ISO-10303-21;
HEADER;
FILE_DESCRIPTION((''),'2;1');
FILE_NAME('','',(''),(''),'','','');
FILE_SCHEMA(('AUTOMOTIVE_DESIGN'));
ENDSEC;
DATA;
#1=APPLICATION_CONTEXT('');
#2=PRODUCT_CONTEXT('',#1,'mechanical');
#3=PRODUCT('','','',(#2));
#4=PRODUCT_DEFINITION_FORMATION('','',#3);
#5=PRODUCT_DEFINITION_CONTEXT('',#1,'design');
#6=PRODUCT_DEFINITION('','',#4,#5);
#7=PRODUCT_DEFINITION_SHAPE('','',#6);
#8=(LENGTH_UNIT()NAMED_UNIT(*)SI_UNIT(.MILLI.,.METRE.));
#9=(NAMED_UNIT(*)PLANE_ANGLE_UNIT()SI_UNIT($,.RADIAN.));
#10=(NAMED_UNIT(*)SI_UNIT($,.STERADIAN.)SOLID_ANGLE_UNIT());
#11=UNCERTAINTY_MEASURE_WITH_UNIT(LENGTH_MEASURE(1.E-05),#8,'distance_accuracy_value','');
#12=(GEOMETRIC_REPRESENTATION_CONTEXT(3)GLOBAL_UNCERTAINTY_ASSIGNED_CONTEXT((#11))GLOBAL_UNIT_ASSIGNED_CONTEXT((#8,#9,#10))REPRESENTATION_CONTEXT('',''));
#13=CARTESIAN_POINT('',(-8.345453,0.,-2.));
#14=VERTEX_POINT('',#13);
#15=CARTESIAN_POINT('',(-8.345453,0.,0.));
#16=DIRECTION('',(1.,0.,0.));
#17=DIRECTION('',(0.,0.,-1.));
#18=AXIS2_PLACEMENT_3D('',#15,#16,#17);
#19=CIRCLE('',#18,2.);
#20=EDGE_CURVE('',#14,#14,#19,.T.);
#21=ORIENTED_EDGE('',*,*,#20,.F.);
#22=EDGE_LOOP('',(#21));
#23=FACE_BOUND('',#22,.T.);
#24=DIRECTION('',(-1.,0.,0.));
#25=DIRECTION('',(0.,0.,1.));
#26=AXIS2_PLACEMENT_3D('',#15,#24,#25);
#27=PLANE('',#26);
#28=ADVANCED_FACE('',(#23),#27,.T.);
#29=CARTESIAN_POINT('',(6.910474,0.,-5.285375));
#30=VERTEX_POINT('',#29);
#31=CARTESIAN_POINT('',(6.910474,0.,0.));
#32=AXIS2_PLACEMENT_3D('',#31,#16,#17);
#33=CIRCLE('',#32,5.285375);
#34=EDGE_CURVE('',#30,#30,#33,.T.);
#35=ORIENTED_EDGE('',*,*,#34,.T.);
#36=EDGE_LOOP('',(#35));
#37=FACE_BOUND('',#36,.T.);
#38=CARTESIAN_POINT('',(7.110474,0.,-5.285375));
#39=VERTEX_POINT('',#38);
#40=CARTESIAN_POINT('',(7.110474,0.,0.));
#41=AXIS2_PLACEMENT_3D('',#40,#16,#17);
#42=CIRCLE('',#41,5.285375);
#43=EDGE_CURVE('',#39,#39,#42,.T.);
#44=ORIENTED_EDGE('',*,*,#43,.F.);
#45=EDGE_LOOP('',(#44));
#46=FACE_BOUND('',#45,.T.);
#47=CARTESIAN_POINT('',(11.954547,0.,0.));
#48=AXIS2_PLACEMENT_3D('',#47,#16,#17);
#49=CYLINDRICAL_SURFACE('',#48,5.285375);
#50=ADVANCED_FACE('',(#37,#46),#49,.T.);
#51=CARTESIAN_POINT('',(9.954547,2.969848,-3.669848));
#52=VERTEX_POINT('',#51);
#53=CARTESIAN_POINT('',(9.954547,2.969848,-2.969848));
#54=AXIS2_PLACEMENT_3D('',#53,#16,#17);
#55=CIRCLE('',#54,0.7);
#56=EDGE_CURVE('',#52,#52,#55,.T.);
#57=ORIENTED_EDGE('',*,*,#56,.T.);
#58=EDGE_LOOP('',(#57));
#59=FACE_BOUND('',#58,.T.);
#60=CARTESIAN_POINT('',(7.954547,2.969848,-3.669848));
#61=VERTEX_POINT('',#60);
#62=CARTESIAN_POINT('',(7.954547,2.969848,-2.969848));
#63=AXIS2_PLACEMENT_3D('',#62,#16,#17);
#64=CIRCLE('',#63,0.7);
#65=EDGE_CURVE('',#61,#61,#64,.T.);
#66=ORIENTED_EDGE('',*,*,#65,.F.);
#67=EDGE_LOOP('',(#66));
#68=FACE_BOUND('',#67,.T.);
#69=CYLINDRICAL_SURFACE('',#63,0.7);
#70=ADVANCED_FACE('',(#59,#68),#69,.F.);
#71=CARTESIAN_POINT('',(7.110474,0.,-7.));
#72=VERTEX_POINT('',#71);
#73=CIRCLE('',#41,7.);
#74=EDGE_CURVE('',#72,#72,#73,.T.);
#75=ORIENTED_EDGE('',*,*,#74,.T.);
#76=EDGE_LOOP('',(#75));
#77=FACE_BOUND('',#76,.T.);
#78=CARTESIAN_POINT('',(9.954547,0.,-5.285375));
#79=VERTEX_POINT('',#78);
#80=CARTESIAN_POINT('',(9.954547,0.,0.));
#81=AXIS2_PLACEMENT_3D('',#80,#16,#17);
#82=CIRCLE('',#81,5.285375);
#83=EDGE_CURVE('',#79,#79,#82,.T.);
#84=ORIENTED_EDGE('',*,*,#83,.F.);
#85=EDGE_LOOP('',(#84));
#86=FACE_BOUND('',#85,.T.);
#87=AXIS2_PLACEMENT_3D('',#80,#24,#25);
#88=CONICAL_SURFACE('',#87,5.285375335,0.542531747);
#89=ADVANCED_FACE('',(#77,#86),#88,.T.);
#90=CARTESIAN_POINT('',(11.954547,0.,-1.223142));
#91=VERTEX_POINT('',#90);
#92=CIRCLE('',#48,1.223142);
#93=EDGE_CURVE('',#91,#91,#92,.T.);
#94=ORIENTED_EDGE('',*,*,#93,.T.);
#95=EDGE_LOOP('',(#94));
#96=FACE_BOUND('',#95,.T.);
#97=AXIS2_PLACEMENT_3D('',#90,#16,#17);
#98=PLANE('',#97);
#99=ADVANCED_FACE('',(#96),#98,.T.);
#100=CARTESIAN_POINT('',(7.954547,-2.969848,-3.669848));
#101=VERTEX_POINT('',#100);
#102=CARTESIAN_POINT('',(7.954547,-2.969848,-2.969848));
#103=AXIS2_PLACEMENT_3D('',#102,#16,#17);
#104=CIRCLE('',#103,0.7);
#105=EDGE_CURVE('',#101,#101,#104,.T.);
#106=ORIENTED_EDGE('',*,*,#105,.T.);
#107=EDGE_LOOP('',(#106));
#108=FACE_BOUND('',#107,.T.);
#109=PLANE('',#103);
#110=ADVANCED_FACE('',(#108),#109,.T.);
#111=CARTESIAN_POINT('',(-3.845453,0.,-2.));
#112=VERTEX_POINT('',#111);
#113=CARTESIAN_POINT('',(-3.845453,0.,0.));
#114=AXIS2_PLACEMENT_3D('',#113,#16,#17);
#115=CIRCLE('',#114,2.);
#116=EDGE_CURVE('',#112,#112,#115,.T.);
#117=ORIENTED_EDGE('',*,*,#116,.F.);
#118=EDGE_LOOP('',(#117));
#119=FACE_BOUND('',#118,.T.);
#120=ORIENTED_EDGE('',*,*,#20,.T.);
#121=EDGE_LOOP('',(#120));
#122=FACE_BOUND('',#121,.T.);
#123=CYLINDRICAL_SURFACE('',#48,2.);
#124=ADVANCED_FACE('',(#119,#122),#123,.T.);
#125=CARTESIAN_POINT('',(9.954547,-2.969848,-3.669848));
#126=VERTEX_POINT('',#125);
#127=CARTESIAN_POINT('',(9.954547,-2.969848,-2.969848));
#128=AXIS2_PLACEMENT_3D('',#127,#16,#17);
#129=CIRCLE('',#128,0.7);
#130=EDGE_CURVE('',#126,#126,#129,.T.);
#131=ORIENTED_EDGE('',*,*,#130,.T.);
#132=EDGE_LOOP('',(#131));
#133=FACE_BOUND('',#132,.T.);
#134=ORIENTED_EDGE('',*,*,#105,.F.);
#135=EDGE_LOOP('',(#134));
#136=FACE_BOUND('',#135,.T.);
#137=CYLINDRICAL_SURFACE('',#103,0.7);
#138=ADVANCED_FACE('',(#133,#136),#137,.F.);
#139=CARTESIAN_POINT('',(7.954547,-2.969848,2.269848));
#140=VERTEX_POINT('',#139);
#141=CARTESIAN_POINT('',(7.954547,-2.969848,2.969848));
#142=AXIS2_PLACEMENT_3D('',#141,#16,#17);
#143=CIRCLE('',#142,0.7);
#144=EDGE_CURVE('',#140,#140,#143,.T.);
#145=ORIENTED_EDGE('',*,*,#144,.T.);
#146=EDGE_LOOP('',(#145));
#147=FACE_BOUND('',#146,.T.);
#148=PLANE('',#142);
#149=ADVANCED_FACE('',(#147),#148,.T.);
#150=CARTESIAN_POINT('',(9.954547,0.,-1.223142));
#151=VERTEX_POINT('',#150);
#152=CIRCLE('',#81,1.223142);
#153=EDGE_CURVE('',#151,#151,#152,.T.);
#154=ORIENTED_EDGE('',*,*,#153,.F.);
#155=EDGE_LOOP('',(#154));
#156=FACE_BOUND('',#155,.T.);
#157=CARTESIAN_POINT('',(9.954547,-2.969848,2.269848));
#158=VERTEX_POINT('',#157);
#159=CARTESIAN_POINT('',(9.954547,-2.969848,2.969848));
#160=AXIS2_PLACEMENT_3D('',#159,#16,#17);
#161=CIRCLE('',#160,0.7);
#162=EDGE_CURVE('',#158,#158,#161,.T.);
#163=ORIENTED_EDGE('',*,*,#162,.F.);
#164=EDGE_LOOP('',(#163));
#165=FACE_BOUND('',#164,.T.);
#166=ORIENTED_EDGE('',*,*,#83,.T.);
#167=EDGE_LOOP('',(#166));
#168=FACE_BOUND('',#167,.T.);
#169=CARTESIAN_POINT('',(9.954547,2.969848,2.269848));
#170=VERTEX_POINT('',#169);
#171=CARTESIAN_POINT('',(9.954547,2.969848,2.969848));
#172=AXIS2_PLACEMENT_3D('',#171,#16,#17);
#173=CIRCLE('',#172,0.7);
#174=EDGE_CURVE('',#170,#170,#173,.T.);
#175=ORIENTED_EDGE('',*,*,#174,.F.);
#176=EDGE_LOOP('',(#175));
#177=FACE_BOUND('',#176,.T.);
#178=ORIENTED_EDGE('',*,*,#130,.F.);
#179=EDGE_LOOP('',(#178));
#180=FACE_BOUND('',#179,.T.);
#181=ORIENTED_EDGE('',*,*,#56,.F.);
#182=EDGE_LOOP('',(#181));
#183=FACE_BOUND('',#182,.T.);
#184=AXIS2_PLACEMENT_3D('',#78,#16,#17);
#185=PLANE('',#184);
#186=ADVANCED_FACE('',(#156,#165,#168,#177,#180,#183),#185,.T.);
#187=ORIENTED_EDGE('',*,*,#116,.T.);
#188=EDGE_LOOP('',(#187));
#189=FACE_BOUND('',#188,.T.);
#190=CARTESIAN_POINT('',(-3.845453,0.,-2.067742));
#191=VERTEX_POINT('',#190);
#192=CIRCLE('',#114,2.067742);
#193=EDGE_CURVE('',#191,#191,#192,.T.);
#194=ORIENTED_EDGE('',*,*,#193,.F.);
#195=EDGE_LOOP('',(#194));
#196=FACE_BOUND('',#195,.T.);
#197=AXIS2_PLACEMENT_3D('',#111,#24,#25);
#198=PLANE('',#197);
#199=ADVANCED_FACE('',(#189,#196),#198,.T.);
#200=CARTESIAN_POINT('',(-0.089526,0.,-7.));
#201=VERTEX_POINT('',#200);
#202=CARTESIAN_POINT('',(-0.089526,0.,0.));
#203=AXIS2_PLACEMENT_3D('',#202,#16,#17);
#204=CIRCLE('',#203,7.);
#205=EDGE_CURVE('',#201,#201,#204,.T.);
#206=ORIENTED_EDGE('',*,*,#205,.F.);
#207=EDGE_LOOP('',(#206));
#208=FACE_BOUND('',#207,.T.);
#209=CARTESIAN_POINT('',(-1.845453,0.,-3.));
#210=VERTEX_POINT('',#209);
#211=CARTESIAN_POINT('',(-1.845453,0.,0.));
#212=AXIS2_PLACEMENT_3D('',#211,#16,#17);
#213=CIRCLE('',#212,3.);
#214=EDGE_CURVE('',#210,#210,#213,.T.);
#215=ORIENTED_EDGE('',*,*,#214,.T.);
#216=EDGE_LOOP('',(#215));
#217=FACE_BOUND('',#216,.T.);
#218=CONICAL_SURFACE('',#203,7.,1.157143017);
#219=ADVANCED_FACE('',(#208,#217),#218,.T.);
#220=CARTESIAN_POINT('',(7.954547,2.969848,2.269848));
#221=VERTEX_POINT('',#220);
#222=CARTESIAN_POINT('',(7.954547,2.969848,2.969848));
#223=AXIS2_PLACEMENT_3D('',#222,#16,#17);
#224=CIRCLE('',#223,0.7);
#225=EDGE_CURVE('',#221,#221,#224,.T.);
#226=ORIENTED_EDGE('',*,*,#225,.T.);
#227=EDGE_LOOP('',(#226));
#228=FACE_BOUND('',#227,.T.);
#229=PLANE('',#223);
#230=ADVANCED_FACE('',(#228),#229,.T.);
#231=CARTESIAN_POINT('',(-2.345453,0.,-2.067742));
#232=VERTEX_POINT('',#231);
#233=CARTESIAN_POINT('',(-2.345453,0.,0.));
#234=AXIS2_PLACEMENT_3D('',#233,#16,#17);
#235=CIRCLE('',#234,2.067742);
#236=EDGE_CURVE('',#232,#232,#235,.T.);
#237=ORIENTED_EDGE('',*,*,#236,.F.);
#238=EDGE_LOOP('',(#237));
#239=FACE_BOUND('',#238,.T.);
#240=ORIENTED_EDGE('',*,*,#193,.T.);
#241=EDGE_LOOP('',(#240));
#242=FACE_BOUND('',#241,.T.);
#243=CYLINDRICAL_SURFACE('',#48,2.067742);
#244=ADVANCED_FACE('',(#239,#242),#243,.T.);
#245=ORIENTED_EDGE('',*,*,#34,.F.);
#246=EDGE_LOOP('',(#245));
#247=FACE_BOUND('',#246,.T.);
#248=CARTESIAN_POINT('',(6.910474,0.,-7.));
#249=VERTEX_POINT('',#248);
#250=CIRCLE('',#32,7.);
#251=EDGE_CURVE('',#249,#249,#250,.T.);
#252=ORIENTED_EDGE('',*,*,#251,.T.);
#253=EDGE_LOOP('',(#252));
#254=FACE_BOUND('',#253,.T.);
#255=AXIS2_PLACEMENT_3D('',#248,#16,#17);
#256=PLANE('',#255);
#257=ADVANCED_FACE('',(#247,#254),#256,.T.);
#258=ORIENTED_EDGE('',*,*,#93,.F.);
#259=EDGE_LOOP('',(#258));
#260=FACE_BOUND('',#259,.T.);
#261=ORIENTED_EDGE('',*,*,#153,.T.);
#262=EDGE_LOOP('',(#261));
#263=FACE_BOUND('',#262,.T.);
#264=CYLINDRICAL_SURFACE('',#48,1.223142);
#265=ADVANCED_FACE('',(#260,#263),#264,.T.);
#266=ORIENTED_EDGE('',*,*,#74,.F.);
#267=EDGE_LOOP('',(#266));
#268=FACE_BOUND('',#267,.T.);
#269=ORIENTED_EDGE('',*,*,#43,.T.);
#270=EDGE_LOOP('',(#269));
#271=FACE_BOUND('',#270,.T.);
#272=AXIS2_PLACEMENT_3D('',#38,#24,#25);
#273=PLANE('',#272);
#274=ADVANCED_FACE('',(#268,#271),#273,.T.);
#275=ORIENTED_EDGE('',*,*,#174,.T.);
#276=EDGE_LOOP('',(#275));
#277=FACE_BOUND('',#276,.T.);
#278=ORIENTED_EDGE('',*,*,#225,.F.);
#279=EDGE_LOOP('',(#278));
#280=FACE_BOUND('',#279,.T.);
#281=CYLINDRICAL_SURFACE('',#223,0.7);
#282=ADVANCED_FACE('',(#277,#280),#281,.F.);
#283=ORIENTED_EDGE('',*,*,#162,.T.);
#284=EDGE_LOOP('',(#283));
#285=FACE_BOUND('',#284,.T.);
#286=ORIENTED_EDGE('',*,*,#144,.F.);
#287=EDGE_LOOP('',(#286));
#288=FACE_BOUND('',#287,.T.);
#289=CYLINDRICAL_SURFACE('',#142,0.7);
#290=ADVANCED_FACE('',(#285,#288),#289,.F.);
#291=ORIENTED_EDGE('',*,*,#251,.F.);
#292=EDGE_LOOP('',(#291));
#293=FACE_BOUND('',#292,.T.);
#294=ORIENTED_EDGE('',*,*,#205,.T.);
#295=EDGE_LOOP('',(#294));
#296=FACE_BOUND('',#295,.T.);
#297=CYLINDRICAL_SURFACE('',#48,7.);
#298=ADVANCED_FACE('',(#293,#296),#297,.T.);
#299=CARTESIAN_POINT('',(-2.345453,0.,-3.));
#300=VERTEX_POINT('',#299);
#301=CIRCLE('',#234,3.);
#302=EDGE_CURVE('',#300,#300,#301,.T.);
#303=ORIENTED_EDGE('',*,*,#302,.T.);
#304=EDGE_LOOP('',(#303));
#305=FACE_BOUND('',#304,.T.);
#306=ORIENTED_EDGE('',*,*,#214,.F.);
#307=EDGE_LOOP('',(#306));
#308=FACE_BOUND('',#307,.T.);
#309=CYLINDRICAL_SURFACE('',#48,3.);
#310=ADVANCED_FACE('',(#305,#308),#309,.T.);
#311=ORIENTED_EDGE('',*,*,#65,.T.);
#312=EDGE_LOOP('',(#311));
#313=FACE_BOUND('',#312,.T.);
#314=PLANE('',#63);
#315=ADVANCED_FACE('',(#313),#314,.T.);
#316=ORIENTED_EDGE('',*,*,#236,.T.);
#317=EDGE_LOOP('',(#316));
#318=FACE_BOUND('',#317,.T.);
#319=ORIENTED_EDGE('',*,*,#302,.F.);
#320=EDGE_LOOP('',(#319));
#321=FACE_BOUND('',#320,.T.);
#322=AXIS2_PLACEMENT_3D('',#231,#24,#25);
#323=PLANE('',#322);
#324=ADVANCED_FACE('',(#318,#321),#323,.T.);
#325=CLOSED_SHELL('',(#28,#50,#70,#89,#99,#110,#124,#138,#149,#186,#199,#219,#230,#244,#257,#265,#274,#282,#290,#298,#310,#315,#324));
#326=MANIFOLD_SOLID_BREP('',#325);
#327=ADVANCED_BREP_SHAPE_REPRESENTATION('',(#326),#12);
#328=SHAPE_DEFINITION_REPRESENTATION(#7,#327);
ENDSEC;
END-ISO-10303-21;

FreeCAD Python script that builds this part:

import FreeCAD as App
import Part
import Sketcher
from FreeCAD import Vector

doc = App.newDocument("Part")
body = doc.addObject("PartDesign::Body", "Body")

# Sketch on XZ plane
sketch1 = doc.addObject("Sketcher::SketchObject", "Sketch")
body.addObject(sketch1)
sketch1.AttachmentSupport = (doc.XZ_Plane, [""])
sketch1.MapMode = "FlatFace"
sketch1.addGeometry([
    Part.LineSegment(Vector(-2.345453, -3, 0), Vector(-2.345453, -2.067742, 0)),  # 0
    Part.LineSegment(Vector(-2.345453, -2.067742, 0), Vector(-3.845453, -2.067742, 0)),  # 1
    Part.LineSegment(Vector(-3.845453, -2.067742, 0), Vector(-3.845453, -2, 0)),  # 2
    Part.LineSegment(Vector(-3.845453, -2, 0), Vector(-8.345453, -2, 0)),  # 3
    Part.LineSegment(Vector(-8.345453, -2, 0), Vector(-8.345453, 0, 0)),  # 4
    Part.LineSegment(Vector(-8.345453, 0, 0), Vector(11.954547, 0, 0)),  # 5
    Part.LineSegment(Vector(11.954547, 0, 0), Vector(11.954547, -1.223142, 0)),  # 6
    Part.LineSegment(Vector(11.954547, -1.223142, 0), Vector(9.954547, -1.223142, 0)),  # 7
    Part.LineSegment(Vector(9.954547, -1.223142, 0), Vector(9.954547, -5.285375, 0)),  # 8
    Part.LineSegment(Vector(9.954547, -5.285375, 0), Vector(7.110474, -7, 0)),  # 9
    Part.LineSegment(Vector(7.110474, -7, 0), Vector(7.110474, -5.285375, 0)),  # 10
    Part.LineSegment(Vector(7.110474, -5.285375, 0), Vector(6.910474, -5.285375, 0)),  # 11
    Part.LineSegment(Vector(6.910474, -5.285375, 0), Vector(6.910474, -7, 0)),  # 12
    Part.LineSegment(Vector(6.910474, -7, 0), Vector(-0.089526, -7, 0)),  # 13
    Part.LineSegment(Vector(-0.089526, -7, 0), Vector(-1.845453, -3, 0)),  # 14
    Part.LineSegment(Vector(-1.845453, -3, 0), Vector(-2.345453, -3, 0)),  # 15
], False)
sketch1.addConstraint([
    Sketcher.Constraint("Coincident", 0, 2, 1, 1),
    Sketcher.Constraint("Coincident", 1, 2, 2, 1),
    Sketcher.Constraint("Coincident", 2, 2, 3, 1),
    Sketcher.Constraint("Coincident", 3, 2, 4, 1),
    Sketcher.Constraint("Coincident", 4, 2, 5, 1),
    Sketcher.Constraint("Coincident", 5, 2, 6, 1),
    Sketcher.Constraint("Coincident", 6, 2, 7, 1),
    Sketcher.Constraint("Coincident", 7, 2, 8, 1),
    Sketcher.Constraint("Coincident", 8, 2, 9, 1),
    Sketcher.Constraint("Coincident", 9, 2, 10, 1),
    Sketcher.Constraint("Coincident", 10, 2, 11, 1),
    Sketcher.Constraint("Coincident", 11, 2, 12, 1),
    Sketcher.Constraint("Coincident", 12, 2, 13, 1),
    Sketcher.Constraint("Coincident", 13, 2, 14, 1),
    Sketcher.Constraint("Coincident", 14, 2, 15, 1),
    Sketcher.Constraint("Coincident", 15, 2, 0, 1),
    Sketcher.Constraint("Vertical", 0),
    Sketcher.Constraint("Horizontal", 1),
    Sketcher.Constraint("Vertical", 2),
    Sketcher.Constraint("Horizontal", 3),
    Sketcher.Constraint("Vertical", 4),
    Sketcher.Constraint("Horizontal", 5),
    Sketcher.Constraint("Vertical", 6),
    Sketcher.Constraint("Horizontal", 7),
    Sketcher.Constraint("Vertical", 8),
    Sketcher.Constraint("Vertical", 10),
    Sketcher.Constraint("Horizontal", 11),
    Sketcher.Constraint("Vertical", 12),
    Sketcher.Constraint("Horizontal", 13),
    Sketcher.Constraint("Horizontal", 15),
    Sketcher.Constraint("PointOnObject", 4, 2, -1),
    Sketcher.Constraint("Horizontal", 8, 2, 10, 2),
    Sketcher.Constraint("Horizontal", 9, 2, 12, 2),
    Sketcher.Constraint("Equal", 7, 4),
    Sketcher.Constraint("DistanceX", 7, 2, 7, 1, 2.0),
    Sketcher.Constraint("DistanceX", 13, 2, 13, 1, 7.0),
    Sketcher.Constraint("DistanceX", 1, 2, 1, 1, 1.5),
    Sketcher.Constraint("DistanceX", 3, 2, 3, 1, 4.5),
    Sketcher.Constraint("DistanceX", 5, 1, 5, 2, 20.3),
    Sketcher.Constraint("DistanceX", 11, 2, 11, 1, 0.2),
    Sketcher.Constraint("DistanceX", 15, 2, 15, 1, 0.5),
    Sketcher.Constraint("DistanceY", 9, 2, -1, 1, 7.0),
    Sketcher.Constraint("DistanceY", 14, 2, -1, 1, 3.0),
    Sketcher.Constraint("DistanceY", 6, 2, 6, 1, 1.223142),
    Sketcher.Constraint("DistanceY", 0, 2, 6, 2, 0.844601),
    Sketcher.Constraint("Distance", 14, 4.368441),
    Sketcher.Constraint("DistanceY", 8, 2, 8, 1, 4.062234),
    Sketcher.Constraint("DistanceX", 0, 2, -1, 1, 2.345453),
])
revolution = doc.addObject("PartDesign::Revolution", "Revolution")
body.addObject(revolution)
revolution.Profile = sketch1
revolution.ReferenceAxis = (sketch1, ["H_Axis"])
revolution.Angle = 360

# Sketch on YZ plane
sketch2 = doc.addObject("Sketcher::SketchObject", "Sketch001")
body.addObject(sketch2)
sketch2.AttachmentSupport = (doc.YZ_Plane, [""])
sketch2.MapMode = "FlatFace"
sketch2.AttachmentOffset = App.Placement(Vector(0, 0, 9.954547), App.Rotation())
sketch2.addGeometry([
    Part.Circle(Vector(2.969848, -2.969848, 0), Vector(0, 0, 1), 0.7),
    Part.Circle(Vector(-2.969848, -2.969848, 0), Vector(0, 0, 1), 0.7),
    Part.Circle(Vector(-2.969848, 2.969848, 0), Vector(0, 0, 1), 0.7),
    Part.Circle(Vector(2.969848, 2.969848, 0), Vector(0, 0, 1), 0.7),
], False)
sketch2.addConstraint([
    Sketcher.Constraint("Equal", 0, 1),
    Sketcher.Constraint("Equal", 1, 2),
    Sketcher.Constraint("Equal", 2, 3),
    Sketcher.Constraint("Symmetric", 0, 3, 2, 3, -1, 1),
    Sketcher.Constraint("Symmetric", 1, 3, 3, 3, -1, 1),
    Sketcher.Constraint("Symmetric", 0, 3, 1, 3, -2),
    Sketcher.Constraint("Diameter", 0, 1.4),
    Sketcher.Constraint("DistanceX", -1, 1, 0, 3, 2.969848),
    Sketcher.Constraint("DistanceY", 0, 3, -1, 1, 2.969848),
])
pocket1 = doc.addObject("PartDesign::Pocket", "Pocket")
body.addObject(pocket1)
pocket1.Profile = sketch2
pocket1.Length = 2

doc.recompute()
